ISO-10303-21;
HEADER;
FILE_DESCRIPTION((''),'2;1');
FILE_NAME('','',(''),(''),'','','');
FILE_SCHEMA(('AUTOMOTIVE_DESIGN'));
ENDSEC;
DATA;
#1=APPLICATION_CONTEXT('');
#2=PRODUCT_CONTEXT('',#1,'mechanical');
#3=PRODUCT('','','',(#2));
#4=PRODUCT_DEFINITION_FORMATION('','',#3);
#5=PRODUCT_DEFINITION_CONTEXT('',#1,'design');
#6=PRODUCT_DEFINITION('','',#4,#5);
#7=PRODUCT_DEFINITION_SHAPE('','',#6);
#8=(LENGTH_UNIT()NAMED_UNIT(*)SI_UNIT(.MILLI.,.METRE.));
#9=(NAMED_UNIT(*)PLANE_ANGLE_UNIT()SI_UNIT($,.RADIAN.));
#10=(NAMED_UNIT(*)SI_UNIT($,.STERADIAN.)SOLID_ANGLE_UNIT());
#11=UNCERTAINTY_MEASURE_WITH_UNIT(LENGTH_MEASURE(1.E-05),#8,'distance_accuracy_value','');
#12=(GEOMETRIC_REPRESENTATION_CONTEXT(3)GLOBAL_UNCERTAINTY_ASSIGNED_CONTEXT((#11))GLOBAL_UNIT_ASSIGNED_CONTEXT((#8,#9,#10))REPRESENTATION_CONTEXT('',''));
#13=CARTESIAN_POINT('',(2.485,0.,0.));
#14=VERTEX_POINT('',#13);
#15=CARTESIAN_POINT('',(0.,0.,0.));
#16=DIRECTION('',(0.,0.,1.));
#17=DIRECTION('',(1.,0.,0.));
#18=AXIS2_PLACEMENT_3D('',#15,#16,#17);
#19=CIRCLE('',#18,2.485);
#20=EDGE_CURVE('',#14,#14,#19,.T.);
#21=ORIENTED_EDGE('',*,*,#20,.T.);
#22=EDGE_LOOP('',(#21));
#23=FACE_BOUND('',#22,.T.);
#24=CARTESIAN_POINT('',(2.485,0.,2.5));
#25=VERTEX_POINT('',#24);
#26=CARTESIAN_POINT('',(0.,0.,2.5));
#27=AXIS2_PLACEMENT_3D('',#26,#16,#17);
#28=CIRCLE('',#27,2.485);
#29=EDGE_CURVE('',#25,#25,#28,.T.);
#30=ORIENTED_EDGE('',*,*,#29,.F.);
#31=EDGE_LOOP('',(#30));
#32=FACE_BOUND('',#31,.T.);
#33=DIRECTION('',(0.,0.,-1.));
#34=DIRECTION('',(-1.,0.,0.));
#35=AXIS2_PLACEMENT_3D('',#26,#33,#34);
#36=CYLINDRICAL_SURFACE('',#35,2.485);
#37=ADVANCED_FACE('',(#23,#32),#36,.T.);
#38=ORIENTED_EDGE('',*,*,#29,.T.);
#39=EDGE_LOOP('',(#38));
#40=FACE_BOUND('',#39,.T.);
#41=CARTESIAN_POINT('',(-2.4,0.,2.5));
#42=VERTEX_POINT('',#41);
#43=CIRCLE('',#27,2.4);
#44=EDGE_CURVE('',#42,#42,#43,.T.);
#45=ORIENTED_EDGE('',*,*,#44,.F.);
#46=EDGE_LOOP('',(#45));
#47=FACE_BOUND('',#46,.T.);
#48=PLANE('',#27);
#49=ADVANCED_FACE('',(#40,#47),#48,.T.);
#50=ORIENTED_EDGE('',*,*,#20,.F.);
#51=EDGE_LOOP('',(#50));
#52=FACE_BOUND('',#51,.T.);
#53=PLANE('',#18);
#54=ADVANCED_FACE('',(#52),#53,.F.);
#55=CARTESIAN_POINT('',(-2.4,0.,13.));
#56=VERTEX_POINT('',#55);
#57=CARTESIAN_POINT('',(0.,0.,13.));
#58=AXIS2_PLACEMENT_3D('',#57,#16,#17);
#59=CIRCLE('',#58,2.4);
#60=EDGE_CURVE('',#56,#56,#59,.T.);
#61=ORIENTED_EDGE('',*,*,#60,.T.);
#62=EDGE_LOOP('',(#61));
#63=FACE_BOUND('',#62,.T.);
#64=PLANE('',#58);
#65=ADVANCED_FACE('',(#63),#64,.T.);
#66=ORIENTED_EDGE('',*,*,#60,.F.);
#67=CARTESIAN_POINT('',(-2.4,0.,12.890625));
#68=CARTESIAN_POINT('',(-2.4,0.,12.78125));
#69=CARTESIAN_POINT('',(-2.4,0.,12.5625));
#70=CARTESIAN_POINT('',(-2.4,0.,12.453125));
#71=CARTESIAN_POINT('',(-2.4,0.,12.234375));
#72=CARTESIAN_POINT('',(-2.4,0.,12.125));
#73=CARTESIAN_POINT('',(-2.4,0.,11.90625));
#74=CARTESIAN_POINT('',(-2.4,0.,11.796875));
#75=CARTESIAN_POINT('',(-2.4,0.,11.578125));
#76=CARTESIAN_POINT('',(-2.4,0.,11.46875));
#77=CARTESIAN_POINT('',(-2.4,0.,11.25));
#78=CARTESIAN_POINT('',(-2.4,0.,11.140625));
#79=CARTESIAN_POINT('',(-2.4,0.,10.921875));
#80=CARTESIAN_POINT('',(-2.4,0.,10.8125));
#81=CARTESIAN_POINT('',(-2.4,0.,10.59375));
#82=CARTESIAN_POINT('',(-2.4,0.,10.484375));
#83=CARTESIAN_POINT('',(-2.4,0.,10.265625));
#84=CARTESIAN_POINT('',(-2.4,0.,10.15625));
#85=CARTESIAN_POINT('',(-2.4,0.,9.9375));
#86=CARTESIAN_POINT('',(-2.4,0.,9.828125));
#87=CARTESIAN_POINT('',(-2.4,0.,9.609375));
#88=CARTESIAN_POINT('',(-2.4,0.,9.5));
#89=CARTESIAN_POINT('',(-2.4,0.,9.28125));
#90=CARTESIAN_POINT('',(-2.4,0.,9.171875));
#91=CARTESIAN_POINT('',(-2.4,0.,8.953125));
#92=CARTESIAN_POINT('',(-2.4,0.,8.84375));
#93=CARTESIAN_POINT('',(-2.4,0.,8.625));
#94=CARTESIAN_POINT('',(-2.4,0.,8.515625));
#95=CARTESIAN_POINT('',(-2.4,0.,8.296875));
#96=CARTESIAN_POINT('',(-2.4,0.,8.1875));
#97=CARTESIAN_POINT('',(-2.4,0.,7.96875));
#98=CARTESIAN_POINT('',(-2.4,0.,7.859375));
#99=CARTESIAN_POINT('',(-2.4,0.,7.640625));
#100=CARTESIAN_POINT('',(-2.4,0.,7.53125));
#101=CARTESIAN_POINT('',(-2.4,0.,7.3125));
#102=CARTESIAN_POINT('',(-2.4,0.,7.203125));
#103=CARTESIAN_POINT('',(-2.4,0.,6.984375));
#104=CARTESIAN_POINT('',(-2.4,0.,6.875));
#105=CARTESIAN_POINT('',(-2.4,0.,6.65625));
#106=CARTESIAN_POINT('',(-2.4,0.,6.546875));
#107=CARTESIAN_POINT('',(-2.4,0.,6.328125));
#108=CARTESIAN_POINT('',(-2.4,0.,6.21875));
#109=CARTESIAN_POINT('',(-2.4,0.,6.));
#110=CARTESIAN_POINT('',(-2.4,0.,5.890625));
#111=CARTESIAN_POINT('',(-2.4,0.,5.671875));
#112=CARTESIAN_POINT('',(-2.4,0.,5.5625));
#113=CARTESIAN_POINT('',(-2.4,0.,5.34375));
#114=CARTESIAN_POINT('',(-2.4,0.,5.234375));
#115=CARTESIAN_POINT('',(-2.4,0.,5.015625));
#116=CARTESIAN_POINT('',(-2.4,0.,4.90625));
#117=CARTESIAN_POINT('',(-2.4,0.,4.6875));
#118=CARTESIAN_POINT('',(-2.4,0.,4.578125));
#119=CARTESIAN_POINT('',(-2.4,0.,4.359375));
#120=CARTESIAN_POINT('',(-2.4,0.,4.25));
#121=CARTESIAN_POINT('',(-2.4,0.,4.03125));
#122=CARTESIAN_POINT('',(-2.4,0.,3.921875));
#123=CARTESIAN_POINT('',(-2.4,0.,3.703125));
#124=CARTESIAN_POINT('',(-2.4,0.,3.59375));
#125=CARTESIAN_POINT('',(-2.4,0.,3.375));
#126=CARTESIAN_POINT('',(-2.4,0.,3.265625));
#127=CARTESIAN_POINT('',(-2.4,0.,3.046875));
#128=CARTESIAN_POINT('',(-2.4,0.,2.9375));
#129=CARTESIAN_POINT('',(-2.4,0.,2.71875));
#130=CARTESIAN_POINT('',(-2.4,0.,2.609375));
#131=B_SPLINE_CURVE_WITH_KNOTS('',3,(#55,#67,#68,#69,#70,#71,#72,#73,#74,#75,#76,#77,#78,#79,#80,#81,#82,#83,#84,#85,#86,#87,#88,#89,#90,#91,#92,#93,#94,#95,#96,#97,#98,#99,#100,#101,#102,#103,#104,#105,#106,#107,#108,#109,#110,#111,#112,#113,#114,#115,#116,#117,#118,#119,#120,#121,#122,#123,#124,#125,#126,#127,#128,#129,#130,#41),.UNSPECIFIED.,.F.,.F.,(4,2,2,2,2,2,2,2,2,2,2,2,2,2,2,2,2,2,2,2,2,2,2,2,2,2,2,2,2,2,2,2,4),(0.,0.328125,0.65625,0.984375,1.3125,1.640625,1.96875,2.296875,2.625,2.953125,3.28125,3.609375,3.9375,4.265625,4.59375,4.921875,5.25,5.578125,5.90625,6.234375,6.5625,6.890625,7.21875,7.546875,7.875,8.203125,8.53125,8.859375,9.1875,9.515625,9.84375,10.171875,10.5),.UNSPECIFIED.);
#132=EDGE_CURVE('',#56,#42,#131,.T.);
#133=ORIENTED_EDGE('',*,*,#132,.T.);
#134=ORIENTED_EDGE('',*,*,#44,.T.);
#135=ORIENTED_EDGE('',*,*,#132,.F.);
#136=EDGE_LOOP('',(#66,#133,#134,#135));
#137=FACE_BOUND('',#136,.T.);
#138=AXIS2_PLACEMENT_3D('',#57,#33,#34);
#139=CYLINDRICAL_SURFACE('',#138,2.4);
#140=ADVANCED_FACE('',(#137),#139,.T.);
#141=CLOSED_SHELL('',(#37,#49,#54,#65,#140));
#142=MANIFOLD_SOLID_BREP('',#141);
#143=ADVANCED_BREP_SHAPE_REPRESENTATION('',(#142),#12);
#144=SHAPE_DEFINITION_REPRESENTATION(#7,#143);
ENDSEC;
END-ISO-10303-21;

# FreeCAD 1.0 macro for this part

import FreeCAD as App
import Part
import Sketcher

V = App.Vector

doc = App.newDocument("Part")
params = doc.addObject("Spreadsheet::Sheet", "Params")
for row, (alias, value) in enumerate([
    ("sketch1_diameter", "4.97 mm"),
    ("pad1_length", "2.5 mm"),
    ("sketch2_diameter", "4.8 mm"),
    ("pad2_length", "10.5 mm"),
], start=1):
    params.set(f"A{row}", alias)
    params.set(f"B{row}", "=" + value)
    params.setAlias(f"B{row}", alias)

body = doc.addObject("PartDesign::Body", "Body")

sketch1 = body.newObject("Sketcher::SketchObject", "Sketch")
sketch1.AttachmentSupport = (doc.getObject("XY_Plane"), [""])
sketch1.MapMode = "FlatFace"
sketch1.addGeometry(Part.Circle(V(0, 0, 0), V(0, 0, 1), 2.485), False)
sketch1.addConstraint(Sketcher.Constraint("Coincident", 0, 3, -1, 1))
sketch1.addConstraint(Sketcher.Constraint("Diameter", 0, 4.97))
sketch1.setExpression("Constraints[1]", "Params.sketch1_diameter")
pad1 = body.newObject("PartDesign::Pad", "Pad")
pad1.Profile = sketch1
pad1.setExpression("Length", "Params.pad1_length")

sketch2 = body.newObject("Sketcher::SketchObject", "Sketch001")
sketch2.AttachmentSupport = (doc.getObject("XY_Plane"), [""])
sketch2.MapMode = "FlatFace"
sketch2.AttachmentOffset = App.Placement(V(0, 0, 2.5), App.Rotation())
sketch2.addGeometry(Part.Circle(V(0, 0, 0), V(0, 0, 1), 2.4), False)
sketch2.addConstraint(Sketcher.Constraint("Coincident", 0, 3, -1, 1))
sketch2.addConstraint(Sketcher.Constraint("Diameter", 0, 4.8))
sketch2.setExpression("Constraints[1]", "Params.sketch2_diameter")
pad2 = body.newObject("PartDesign::Pad", "Pad001")
pad2.Profile = sketch2
pad2.setExpression("Length", "Params.pad2_length")

doc.recompute()
